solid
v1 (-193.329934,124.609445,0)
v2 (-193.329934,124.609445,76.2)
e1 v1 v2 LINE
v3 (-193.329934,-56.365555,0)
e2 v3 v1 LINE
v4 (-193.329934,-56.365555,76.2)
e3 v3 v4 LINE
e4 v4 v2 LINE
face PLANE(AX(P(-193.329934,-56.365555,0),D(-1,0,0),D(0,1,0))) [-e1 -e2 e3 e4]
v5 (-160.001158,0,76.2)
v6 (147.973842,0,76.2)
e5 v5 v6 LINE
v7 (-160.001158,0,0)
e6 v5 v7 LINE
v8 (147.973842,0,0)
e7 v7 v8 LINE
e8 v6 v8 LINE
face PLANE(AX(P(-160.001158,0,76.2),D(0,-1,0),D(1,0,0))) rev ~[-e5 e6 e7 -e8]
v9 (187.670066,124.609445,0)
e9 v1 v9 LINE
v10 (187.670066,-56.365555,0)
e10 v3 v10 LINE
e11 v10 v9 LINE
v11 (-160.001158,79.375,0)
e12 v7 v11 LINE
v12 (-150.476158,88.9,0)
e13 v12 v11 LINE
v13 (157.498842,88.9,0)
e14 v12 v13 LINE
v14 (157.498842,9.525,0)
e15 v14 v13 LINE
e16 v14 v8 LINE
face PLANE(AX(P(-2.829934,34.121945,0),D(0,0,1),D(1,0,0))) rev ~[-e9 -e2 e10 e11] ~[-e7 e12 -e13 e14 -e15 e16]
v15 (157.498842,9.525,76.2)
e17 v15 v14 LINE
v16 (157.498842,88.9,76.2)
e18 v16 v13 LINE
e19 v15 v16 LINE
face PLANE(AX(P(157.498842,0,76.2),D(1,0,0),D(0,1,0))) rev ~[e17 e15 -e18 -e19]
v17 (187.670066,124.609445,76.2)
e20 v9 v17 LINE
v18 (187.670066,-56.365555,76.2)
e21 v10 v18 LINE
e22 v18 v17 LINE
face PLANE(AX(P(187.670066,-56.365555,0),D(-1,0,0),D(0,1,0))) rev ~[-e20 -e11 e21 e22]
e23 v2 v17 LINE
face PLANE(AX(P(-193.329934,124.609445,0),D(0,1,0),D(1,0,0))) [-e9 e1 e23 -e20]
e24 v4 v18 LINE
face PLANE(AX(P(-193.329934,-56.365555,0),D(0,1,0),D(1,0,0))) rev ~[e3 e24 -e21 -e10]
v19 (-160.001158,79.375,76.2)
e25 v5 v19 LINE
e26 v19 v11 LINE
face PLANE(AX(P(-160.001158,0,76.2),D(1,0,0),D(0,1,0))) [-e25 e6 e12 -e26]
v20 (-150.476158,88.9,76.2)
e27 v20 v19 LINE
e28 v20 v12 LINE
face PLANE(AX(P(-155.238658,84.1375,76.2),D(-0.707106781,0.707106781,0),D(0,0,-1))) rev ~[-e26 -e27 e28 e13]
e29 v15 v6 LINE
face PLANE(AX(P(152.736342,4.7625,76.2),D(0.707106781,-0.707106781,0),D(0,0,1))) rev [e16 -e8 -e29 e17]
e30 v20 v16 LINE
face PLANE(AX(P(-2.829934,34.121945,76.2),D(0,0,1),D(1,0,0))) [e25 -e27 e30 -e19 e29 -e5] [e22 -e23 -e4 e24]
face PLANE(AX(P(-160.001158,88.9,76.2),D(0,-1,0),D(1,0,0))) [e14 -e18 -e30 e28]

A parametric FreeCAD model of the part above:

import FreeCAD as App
import Part
import Sketcher

V = App.Vector
Q = App.Units.Quantity


def edges_at(feature, points):
    """Names of the edges that pass closest to the given points."""
    edges = feature.Shape.Edges
    near = lambda p: min(range(len(edges)), key=lambda i: edges[i].distToShape(Part.Vertex(*p))[0])
    return sorted({f"Edge{near(p) + 1}" for p in points})

doc = App.newDocument("Part")
body = doc.addObject("PartDesign::Body", "Body")

sketch1 = body.newObject("Sketcher::SketchObject", "Sketch")
sketch1.AttachmentSupport = (doc.getObject("XY_Plane"), [""])
sketch1.MapMode = "FlatFace"
sketch1.addGeometry([
    Part.LineSegment(V(-193, 125, 0), V(-193, -56, 0)),
    Part.LineSegment(V(-193, -56, 0), V(188, -56, 0)),
    Part.LineSegment(V(188, -56, 0), V(188, 125, 0)),
    Part.LineSegment(V(188, 125, 0), V(-193, 125, 0)),
], False)
sketch1.addConstraint([
    Sketcher.Constraint("Coincident", 0, 2, 1, 1),
    Sketcher.Constraint("Coincident", 1, 2, 2, 1),
    Sketcher.Constraint("Coincident", 2, 2, 3, 1),
    Sketcher.Constraint("Coincident", 3, 2, 0, 1),
    Sketcher.Constraint("Vertical", 0),
    Sketcher.Constraint("Horizontal", 1),
    Sketcher.Constraint("Vertical", 2),
    Sketcher.Constraint("Horizontal", 3),
    Sketcher.Constraint("DistanceX", 1, 1, 1, 2, Q("15 in")),
    Sketcher.Constraint("DistanceY", 0, 2, 0, 1, Q("7.125 in")),
    Sketcher.Constraint("DistanceX", 0, 2, -1, 1, 193.329934),
    Sketcher.Constraint("DistanceY", 0, 2, -1, 1, 56.365555),
])
pad1 = body.newObject("PartDesign::Pad", "Pad")
pad1.Profile = sketch1
pad1.Length = Q("3 in")

sketch2 = body.newObject("Sketcher::SketchObject", "Sketch001")
sketch2.AttachmentSupport = (doc.getObject("XY_Plane"), [""])
sketch2.MapMode = "FlatFace"
sketch2.AttachmentOffset = App.Placement(V(0, 0, 3 * 25.4), App.Rotation())
sketch2.addGeometry([
    Part.LineSegment(V(-160, 89, 0), V(-160, 0, 0)),
    Part.LineSegment(V(-160, 0, 0), V(157, 0, 0)),
    Part.LineSegment(V(157, 0, 0), V(157, 89, 0)),
    Part.LineSegment(V(157, 89, 0), V(-160, 89, 0)),
], False)
sketch2.addConstraint([
    Sketcher.Constraint("Coincident", 0, 2, 1, 1),
    Sketcher.Constraint("Coincident", 1, 2, 2, 1),
    Sketcher.Constraint("Coincident", 2, 2, 3, 1),
    Sketcher.Constraint("Coincident", 3, 2, 0, 1),
    Sketcher.Constraint("Vertical", 0),
    Sketcher.Constraint("Horizontal", 1),
    Sketcher.Constraint("Vertical", 2),
    Sketcher.Constraint("Horizontal", 3),
    Sketcher.Constraint("PointOnObject", 0, 2, -1),
    Sketcher.Constraint("DistanceX", 1, 1, 1, 2, Q("12.5 in")),
    Sketcher.Constraint("DistanceY", 0, 2, 0, 1, Q("3.5 in")),
    Sketcher.Constraint("DistanceX", 0, 2, -1, 1, 160.001158),
])
pocket1 = body.newObject("PartDesign::Pocket", "Pocket")
pocket1.Profile = sketch2
pocket1.Length = Q("3 in")
doc.recompute()

chamfer = body.newObject("PartDesign::Chamfer", "Chamfer")
chamfer.Base = (pocket1, edges_at(pocket1, [(-160.001, 88.9, 38.1)]))
chamfer.Size = Q("0.375 in")
doc.recompute()

chamfer2 = body.newObject("PartDesign::Chamfer", "Chamfer001")
chamfer2.Base = (chamfer, edges_at(chamfer, [(157.499, 0, 38.1)]))
chamfer2.Size = Q("0.375 in")

doc.recompute()
